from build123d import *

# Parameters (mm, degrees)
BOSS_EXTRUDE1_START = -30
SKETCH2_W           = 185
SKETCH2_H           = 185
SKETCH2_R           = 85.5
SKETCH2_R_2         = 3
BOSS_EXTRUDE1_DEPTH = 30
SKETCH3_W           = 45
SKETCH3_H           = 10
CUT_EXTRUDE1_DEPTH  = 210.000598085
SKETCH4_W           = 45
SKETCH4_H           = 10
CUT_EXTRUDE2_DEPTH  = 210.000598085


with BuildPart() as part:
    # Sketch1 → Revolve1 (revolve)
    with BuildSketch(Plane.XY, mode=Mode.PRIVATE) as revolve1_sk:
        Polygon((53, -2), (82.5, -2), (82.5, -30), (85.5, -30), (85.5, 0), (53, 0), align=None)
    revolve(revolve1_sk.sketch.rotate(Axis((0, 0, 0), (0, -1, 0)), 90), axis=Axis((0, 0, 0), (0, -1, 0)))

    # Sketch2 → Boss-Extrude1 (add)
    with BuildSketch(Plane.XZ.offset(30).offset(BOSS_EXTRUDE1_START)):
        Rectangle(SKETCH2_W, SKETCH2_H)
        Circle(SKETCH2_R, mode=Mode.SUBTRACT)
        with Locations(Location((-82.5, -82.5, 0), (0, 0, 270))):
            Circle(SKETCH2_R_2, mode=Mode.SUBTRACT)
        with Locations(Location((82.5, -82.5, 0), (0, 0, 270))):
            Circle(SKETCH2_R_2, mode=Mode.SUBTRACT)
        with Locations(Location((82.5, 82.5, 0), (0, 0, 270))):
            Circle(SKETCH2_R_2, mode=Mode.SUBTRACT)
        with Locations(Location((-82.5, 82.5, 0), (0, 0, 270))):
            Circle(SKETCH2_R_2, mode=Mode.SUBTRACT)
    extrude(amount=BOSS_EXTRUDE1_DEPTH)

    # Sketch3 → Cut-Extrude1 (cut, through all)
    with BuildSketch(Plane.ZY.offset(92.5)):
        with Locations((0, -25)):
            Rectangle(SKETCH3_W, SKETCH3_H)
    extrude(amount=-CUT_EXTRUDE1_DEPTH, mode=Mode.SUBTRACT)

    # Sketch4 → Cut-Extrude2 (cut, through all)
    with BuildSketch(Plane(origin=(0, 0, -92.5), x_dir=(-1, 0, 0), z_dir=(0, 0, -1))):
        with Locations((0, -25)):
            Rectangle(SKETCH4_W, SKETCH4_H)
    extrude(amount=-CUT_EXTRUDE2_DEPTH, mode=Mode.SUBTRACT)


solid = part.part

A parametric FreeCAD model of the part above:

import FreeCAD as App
import Part
import Sketcher


def add_polygon(sketch, points):
    """Adds a closed chain of lines whose ends are joined by coincident constraints."""
    first, n = sketch.GeometryCount, len(points)
    for a, b in zip(points, points[1:] + points[:1]):
        sketch.addGeometry(Part.LineSegment(App.Vector(*a, 0), App.Vector(*b, 0)), False)
    for i in range(n):
        sketch.addConstraint(Sketcher.Constraint("Coincident", first + i, 2, first + (i + 1) % n, 1))

doc = App.newDocument("Part")
body = doc.addObject("PartDesign::Body", "Body")

sketch1 = body.newObject("Sketcher::SketchObject", "Sketch")
sketch1.AttachmentSupport = (doc.getObject("XY_Plane"), [""])
sketch1.MapMode = "FlatFace"
add_polygon(sketch1, [(53, -2), (82.5, -2), (82.5, -30), (85.5, -30), (85.5, 0), (53, 0)])
sketch1.addConstraint([
    Sketcher.Constraint("Horizontal", 0),
    Sketcher.Constraint("Vertical", 1),
    Sketcher.Constraint("Horizontal", 2),
    Sketcher.Constraint("Vertical", 3),
    Sketcher.Constraint("Horizontal", 4),
    Sketcher.Constraint("Vertical", 5),
    Sketcher.Constraint("PointOnObject", 3, 2, -1),
    Sketcher.Constraint("DistanceX", 2, 1, 2, 2, 3.0),
    Sketcher.Constraint("DistanceY", 1, 2, 1, 1, 28.0),
    Sketcher.Constraint("DistanceY", 3, 1, 3, 2, 30.0),
    Sketcher.Constraint("DistanceX", 0, 1, 0, 2, 29.5),
    Sketcher.Constraint("DistanceX", -1, 1, 4, 2, 53.0),
])
revolution = body.newObject("PartDesign::Revolution", "Revolution")
revolution.Profile = sketch1
revolution.ReferenceAxis = (sketch1, ["V_Axis"])
revolution.Angle = 360

sketch2 = body.newObject("Sketcher::SketchObject", "Sketch001")
sketch2.AttachmentSupport = (doc.getObject("XZ_Plane"), [""])
sketch2.MapMode = "FlatFace"
add_polygon(sketch2, [(-92.5, 92.5), (-92.5, -92.5), (92.5, -92.5), (92.5, 92.5)])
sketch2.addGeometry(Part.Circle(App.Vector(-82.5, -82.5, 0), App.Vector(0, 0, 1), 3), False)
sketch2.addGeometry(Part.Circle(App.Vector(82.5, -82.5, 0), App.Vector(0, 0, 1), 3), False)
sketch2.addGeometry(Part.Circle(App.Vector(-82.5, 82.5, 0), App.Vector(0, 0, 1), 3), False)
sketch2.addGeometry(Part.Circle(App.Vector(0, 0, 0), App.Vector(0, 0, 1), 85.5), False)
sketch2.addGeometry(Part.Circle(App.Vector(82.5, 82.5, 0), App.Vector(0, 0, 1), 3), False)
sketch2.addConstraint([
    Sketcher.Constraint("Vertical", 0),
    Sketcher.Constraint("Horizontal", 1),
    Sketcher.Constraint("Vertical", 2),
    Sketcher.Constraint("Horizontal", 3),
    Sketcher.Constraint("Coincident", 7, 3, -1, 1),
    Sketcher.Constraint("Equal", 4, 5),
    Sketcher.Constraint("Equal", 5, 6),
    Sketcher.Constraint("Equal", 6, 8),
    Sketcher.Constraint("Symmetric", 5, 3, 6, 3, -1, 1),
    Sketcher.Constraint("Symmetric", 4, 3, 8, 3, -1, 1),
    Sketcher.Constraint("Symmetric", 0, 2, 2, 2, -1, 1),
    Sketcher.Constraint("Symmetric", 4, 3, 5, 3, -2),
    Sketcher.Constraint("Equal", 3, 0),
    Sketcher.Constraint("Diameter", 4, 6.0),
    Sketcher.Constraint("Diameter", 7, 171.0),
    Sketcher.Constraint("DistanceX", 1, 1, 1, 2, 185.0),
    Sketcher.Constraint("DistanceX", 4, 3, 5, 3, 165.0),
    Sketcher.Constraint("DistanceY", 4, 3, 6, 3, 165.0),
])
pad1 = body.newObject("PartDesign::Pad", "Pad")
pad1.Profile = sketch2
pad1.Length = 30

sketch3 = body.newObject("Sketcher::SketchObject", "Sketch002")
sketch3.AttachmentSupport = (doc.getObject("YZ_Plane"), [""])
sketch3.MapMode = "FlatFace"
sketch3.AttachmentOffset = App.Placement(App.Vector(0, 0, -92.5), App.Rotation())
add_polygon(sketch3, [(-20, -22), (-30, -22), (-30, 22), (-20, 22)])
sketch3.addConstraint([
    Sketcher.Constraint("Horizontal", 0),
    Sketcher.Constraint("Vertical", 1),
    Sketcher.Constraint("Horizontal", 2),
    Sketcher.Constraint("Vertical", 3),
    Sketcher.Constraint("DistanceX", 0, 2, 0, 1, 10.0),
    Sketcher.Constraint("DistanceY", 1, 1, 1, 2, 45.0),
    Sketcher.Constraint("DistanceX", 0, 2, -1, 1, 30.0),
    Sketcher.Constraint("DistanceY", 0, 2, -1, 1, 22.5),
])
pocket1 = body.newObject("PartDesign::Pocket", "Pocket")
pocket1.Profile = sketch3
pocket1.Type = "ThroughAll"
pocket1.Reversed = True

sketch4 = body.newObject("Sketcher::SketchObject", "Sketch003")
sketch4.AttachmentSupport = (doc.getObject("XY_Plane"), [""])
sketch4.MapMode = "FlatFace"
sketch4.AttachmentOffset = App.Placement(App.Vector(0, 0, -92.5), App.Rotation())
add_polygon(sketch4, [(22, -20), (22, -30), (-22, -30), (-22, -20)])
sketch4.addConstraint([
    Sketcher.Constraint("Vertical", 0),
    Sketcher.Constraint("Horizontal", 1),
    Sketcher.Constraint("Vertical", 2),
    Sketcher.Constraint("Horizontal", 3),
    Sketcher.Constraint("DistanceX", 1, 2, 1, 1, 45.0),
    Sketcher.Constraint("DistanceY", 0, 2, 0, 1, 10.0),
    Sketcher.Constraint("DistanceY", 0, 2, -1, 1, 30.0),
    Sketcher.Constraint("DistanceX", -1, 1, 0, 2, 22.5),
])
pocket2 = body.newObject("PartDesign::Pocket", "Pocket001")
pocket2.Profile = sketch4
pocket2.Type = "ThroughAll"
pocket2.Reversed = True

doc.recompute()
